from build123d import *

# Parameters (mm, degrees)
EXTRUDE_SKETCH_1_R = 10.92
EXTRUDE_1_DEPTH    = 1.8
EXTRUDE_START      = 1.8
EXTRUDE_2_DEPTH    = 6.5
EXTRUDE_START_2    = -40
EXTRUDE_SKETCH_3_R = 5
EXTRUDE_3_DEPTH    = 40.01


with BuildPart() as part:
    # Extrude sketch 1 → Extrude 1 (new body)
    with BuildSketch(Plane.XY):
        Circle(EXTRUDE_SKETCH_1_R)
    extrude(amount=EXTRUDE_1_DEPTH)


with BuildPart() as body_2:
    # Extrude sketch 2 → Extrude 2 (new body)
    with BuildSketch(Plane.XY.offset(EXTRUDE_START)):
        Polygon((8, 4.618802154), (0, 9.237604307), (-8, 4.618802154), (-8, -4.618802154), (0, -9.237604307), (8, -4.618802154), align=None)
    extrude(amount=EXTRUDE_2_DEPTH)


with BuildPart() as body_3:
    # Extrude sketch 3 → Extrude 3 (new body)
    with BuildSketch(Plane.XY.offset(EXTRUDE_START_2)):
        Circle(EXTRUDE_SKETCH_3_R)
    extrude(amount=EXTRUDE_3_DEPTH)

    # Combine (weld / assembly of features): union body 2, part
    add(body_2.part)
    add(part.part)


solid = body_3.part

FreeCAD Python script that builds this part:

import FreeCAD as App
import Part
import Sketcher
from FreeCAD import Vector
Q = App.Units.Quantity

doc = App.newDocument("Part")
body = doc.addObject("PartDesign::Body", "Body")

sketch1 = body.newObject("Sketcher::SketchObject", "Sketch")
sketch1.AttachmentSupport = (doc.getObject("XY_Plane"), [""])
sketch1.MapMode = "FlatFace"
sketch1.addGeometry(Part.Circle(Vector(0, 0, 0), Vector(0, 0, 1), 11), False)
sketch1.addConstraint(Sketcher.Constraint("Coincident", 0, 3, -1, 1))
sketch1.addConstraint(Sketcher.Constraint("Diameter", 0, Q("21.84 mm")))
pad1 = body.newObject("PartDesign::Pad", "Pad")
pad1.Profile = sketch1
pad1.Length = 1.8
body2 = doc.addObject("PartDesign::Body", "Body001")

sketch2 = body2.newObject("Sketcher::SketchObject", "Sketch001")
sketch2.AttachmentSupport = (doc.getObject("XY_Plane001"), [""])
sketch2.MapMode = "FlatFace"
sketch2.AttachmentOffset = App.Placement(Vector(0, 0, 1.8), App.Rotation())
sketch2.addGeometry(Part.LineSegment(Vector(8, 5, 0), Vector(0, 9, 0)), False)
sketch2.addGeometry(Part.LineSegment(Vector(0, 9, 0), Vector(-8, 5, 0)), False)
sketch2.addGeometry(Part.LineSegment(Vector(-8, 5, 0), Vector(-8, -5, 0)), False)
sketch2.addGeometry(Part.LineSegment(Vector(-8, -5, 0), Vector(0, -9, 0)), False)
sketch2.addGeometry(Part.LineSegment(Vector(0, -9, 0), Vector(8, -5, 0)), False)
sketch2.addGeometry(Part.LineSegment(Vector(8, -5, 0), Vector(8, 5, 0)), False)
sketch2.addConstraint(Sketcher.Constraint("Coincident", 0, 2, 1, 1))
sketch2.addConstraint(Sketcher.Constraint("Coincident", 1, 2, 2, 1))
sketch2.addConstraint(Sketcher.Constraint("Coincident", 2, 2, 3, 1))
sketch2.addConstraint(Sketcher.Constraint("Coincident", 3, 2, 4, 1))
sketch2.addConstraint(Sketcher.Constraint("Coincident", 4, 2, 5, 1))
sketch2.addConstraint(Sketcher.Constraint("Coincident", 5, 2, 0, 1))
sketch2.addConstraint(Sketcher.Constraint("Vertical", 2))
sketch2.addConstraint(Sketcher.Constraint("Vertical", 5))
sketch2.addConstraint(Sketcher.Constraint("Symmetric", 0, 2, 3, 2, -1, 1))
sketch2.addConstraint(Sketcher.Constraint("Symmetric", 1, 2, 4, 2, -1, 1))
sketch2.addConstraint(Sketcher.Constraint("PointOnObject", 0, 2, -2))
sketch2.addConstraint(Sketcher.Constraint("Parallel", 0, 3))
sketch2.addConstraint(Sketcher.Constraint("Horizontal", 2, 2, 4, 2))
sketch2.addConstraint(Sketcher.Constraint("Angle", 0, Q("150 deg")))
sketch2.addConstraint(Sketcher.Constraint("DistanceX", 1, 2, -1, 1, Q("8 mm")))
sketch2.addConstraint(Sketcher.Constraint("DistanceY", 2, 2, 2, 1, Q("9.237604 mm")))
pad2 = body2.newObject("PartDesign::Pad", "Pad001")
pad2.Profile = sketch2
pad2.Length = 6.5
body3 = doc.addObject("PartDesign::Body", "Body002")
body3.AllowCompound = True

sketch3 = body3.newObject("Sketcher::SketchObject", "Sketch002")
sketch3.AttachmentSupport = (doc.getObject("XY_Plane002"), [""])
sketch3.MapMode = "FlatFace"
sketch3.AttachmentOffset = App.Placement(Vector(0, 0, -40), App.Rotation())
sketch3.addGeometry(Part.Circle(Vector(0, 0, 0), Vector(0, 0, 1), 5), False)
sketch3.addConstraint(Sketcher.Constraint("Coincident", 0, 3, -1, 1))
sketch3.addConstraint(Sketcher.Constraint("Diameter", 0, Q("10 mm")))
pad3 = body3.newObject("PartDesign::Pad", "Pad002")
pad3.Profile = sketch3
pad3.Length = 40.01
doc.recompute()

boolean = body3.newObject("PartDesign::Boolean", "Boolean")
boolean.Type = "Fuse"
boolean.addObjects([body2])
doc.recompute()

boolean2 = body3.newObject("PartDesign::Boolean", "Boolean001")
boolean2.Type = "Fuse"
boolean2.addObjects([body])

doc.recompute()
